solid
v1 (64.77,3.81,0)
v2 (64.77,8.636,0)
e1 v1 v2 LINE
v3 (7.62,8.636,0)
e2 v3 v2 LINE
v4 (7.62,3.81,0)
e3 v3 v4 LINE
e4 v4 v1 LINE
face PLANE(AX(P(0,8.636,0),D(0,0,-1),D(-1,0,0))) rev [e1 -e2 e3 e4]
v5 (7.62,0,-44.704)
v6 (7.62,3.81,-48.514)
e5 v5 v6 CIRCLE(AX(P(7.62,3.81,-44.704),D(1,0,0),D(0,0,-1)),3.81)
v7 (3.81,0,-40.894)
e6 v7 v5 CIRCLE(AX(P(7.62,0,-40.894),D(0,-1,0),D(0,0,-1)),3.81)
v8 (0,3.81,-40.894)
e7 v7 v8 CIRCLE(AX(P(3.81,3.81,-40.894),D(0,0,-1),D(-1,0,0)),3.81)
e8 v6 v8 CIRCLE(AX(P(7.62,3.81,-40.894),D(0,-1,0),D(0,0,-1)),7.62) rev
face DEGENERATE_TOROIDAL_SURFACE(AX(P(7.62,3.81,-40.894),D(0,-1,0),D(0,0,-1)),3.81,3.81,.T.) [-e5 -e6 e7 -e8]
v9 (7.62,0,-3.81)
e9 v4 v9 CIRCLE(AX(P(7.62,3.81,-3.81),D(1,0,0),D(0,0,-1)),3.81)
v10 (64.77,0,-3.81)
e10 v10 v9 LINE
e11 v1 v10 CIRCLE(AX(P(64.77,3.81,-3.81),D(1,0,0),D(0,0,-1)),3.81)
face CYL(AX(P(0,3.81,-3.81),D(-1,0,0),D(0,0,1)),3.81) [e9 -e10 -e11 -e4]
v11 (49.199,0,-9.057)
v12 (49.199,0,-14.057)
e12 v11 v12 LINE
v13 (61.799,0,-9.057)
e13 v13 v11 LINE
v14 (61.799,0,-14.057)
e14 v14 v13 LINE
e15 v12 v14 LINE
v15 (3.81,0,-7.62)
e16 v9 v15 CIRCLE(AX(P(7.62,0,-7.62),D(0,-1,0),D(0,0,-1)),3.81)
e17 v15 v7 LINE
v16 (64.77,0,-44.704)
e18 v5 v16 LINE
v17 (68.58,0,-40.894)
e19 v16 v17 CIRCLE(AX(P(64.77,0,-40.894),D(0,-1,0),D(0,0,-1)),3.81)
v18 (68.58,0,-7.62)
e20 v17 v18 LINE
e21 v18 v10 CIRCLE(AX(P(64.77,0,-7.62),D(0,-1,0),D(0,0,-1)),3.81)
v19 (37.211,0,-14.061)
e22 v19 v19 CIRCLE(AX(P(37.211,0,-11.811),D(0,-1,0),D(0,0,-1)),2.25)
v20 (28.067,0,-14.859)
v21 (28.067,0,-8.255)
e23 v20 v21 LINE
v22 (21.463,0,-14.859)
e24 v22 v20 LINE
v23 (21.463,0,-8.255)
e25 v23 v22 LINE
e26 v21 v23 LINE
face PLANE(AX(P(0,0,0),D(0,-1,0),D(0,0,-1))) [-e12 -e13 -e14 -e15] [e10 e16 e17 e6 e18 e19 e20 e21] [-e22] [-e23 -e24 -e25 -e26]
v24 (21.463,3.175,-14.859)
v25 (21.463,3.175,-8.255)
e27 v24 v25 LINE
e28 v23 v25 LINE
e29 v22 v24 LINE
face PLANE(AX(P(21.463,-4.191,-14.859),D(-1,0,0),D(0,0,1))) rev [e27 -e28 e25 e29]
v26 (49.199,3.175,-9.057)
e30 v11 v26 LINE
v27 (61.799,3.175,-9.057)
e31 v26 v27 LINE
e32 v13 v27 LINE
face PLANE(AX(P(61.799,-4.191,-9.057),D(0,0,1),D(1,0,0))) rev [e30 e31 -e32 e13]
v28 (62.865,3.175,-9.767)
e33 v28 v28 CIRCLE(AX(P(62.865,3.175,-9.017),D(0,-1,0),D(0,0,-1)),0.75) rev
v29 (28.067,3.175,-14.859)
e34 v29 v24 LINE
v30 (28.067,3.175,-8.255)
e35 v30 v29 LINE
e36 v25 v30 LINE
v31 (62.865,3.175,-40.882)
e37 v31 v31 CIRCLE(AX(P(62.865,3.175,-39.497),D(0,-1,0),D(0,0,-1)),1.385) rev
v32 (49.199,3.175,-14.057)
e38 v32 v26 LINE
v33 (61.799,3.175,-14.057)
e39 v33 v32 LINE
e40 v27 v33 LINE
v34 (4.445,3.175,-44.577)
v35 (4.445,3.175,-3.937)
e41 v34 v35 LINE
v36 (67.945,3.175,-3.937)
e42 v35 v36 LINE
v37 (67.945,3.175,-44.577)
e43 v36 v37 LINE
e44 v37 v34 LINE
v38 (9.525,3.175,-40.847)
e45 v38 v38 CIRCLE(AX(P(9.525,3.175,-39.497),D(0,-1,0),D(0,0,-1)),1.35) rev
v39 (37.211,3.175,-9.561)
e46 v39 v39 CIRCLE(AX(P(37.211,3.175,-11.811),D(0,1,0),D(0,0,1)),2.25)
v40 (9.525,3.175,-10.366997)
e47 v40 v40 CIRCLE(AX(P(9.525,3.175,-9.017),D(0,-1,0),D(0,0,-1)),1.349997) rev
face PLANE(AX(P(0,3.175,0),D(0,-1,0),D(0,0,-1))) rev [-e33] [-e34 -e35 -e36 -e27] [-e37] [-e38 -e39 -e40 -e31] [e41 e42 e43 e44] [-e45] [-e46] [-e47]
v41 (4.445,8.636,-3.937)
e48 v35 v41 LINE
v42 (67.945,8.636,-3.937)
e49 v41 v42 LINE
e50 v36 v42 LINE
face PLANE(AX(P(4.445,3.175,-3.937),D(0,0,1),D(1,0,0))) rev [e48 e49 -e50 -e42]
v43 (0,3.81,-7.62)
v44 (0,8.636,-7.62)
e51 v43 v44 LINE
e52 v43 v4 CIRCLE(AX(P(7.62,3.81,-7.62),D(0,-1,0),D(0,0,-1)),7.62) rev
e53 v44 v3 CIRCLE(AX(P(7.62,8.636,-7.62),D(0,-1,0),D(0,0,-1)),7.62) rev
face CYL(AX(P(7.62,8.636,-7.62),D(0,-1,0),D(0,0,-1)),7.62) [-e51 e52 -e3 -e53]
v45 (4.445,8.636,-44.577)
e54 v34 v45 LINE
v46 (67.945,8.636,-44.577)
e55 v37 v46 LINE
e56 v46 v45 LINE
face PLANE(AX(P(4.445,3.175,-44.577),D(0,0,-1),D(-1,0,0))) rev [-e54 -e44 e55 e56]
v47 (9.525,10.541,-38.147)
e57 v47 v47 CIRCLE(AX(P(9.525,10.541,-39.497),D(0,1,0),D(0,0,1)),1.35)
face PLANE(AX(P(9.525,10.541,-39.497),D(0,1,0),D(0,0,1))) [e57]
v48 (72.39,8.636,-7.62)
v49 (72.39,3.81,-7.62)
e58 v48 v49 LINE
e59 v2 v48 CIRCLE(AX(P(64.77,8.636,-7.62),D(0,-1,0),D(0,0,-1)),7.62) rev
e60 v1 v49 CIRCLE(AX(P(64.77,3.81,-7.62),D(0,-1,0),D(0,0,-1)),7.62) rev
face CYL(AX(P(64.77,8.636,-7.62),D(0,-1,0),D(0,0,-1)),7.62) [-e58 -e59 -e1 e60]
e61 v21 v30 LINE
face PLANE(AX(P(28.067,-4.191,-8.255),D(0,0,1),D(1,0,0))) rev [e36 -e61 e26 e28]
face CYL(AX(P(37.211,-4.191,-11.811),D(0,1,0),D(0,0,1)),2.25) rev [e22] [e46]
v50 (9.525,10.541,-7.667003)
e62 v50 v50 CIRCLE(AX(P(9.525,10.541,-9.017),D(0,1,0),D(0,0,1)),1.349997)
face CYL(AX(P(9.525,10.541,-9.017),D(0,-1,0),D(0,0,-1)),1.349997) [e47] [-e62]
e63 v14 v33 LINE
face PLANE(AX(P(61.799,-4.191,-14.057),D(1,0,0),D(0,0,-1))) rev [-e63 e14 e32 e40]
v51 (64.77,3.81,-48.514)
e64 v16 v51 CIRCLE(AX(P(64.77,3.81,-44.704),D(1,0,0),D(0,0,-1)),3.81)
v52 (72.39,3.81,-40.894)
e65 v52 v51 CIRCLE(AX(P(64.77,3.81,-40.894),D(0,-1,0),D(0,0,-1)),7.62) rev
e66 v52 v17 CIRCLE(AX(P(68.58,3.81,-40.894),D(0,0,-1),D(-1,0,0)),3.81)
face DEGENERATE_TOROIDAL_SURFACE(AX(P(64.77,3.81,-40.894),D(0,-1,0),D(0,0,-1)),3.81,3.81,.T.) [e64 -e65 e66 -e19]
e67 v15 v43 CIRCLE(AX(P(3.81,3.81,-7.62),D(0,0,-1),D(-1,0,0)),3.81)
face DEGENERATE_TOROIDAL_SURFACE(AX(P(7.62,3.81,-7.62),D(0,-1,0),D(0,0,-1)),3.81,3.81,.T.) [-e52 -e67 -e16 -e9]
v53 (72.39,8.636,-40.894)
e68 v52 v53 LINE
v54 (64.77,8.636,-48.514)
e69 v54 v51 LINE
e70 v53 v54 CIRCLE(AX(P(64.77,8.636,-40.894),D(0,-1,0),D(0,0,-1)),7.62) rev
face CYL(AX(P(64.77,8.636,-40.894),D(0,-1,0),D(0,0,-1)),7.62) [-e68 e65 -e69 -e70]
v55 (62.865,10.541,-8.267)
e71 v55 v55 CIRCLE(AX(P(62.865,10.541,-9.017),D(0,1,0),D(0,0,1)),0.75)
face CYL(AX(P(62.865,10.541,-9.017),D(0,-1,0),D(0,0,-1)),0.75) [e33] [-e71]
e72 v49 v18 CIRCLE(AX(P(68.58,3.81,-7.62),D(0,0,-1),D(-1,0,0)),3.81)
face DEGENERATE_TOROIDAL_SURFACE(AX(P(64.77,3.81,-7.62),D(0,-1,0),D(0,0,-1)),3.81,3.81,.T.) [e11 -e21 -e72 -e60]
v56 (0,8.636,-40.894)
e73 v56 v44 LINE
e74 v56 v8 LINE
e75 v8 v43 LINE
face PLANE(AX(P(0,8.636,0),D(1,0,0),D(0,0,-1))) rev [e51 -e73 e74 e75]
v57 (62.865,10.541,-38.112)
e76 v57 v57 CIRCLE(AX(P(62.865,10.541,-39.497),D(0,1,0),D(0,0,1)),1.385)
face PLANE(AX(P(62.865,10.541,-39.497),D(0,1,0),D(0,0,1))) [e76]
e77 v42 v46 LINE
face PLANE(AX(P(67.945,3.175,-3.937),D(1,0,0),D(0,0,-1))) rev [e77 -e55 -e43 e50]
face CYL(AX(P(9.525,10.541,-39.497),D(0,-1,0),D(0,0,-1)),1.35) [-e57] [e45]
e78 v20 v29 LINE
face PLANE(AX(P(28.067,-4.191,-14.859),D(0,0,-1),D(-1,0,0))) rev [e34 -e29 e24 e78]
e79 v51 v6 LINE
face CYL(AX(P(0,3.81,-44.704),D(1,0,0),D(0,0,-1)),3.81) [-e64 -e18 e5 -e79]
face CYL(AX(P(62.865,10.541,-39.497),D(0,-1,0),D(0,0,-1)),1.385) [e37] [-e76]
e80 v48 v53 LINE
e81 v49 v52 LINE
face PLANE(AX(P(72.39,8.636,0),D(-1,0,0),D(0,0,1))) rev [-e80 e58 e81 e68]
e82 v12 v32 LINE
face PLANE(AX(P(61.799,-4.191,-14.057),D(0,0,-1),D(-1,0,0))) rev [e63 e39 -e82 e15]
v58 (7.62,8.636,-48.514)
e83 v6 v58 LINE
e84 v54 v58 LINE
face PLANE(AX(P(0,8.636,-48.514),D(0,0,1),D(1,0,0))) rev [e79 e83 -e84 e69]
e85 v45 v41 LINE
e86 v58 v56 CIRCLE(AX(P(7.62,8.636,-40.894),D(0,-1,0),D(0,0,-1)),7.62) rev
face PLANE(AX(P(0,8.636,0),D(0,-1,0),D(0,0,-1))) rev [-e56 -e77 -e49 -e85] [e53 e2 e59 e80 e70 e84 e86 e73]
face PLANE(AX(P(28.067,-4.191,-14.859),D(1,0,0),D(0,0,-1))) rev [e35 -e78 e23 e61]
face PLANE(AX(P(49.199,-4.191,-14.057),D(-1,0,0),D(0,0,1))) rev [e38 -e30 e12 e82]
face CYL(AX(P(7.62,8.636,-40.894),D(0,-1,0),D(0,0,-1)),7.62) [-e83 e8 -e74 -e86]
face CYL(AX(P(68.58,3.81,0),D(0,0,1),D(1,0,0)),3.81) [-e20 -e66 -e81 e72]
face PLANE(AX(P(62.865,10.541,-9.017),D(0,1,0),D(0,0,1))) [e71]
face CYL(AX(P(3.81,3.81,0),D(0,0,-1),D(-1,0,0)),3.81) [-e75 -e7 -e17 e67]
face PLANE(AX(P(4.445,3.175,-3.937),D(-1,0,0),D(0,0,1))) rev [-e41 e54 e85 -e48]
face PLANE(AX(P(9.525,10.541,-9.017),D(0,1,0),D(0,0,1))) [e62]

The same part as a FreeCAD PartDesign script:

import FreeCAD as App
import Part
import Sketcher
Q = App.Units.Quantity


def edges_at(feature, points):
    """Names of the edges that pass closest to the given points."""
    edges = feature.Shape.Edges
    near = lambda p: min(range(len(edges)), key=lambda i: edges[i].distToShape(Part.Vertex(*p))[0])
    return sorted({f"Edge{near(p) + 1}" for p in points})


def add_polygon(sketch, points):
    """Adds a closed chain of lines whose ends are joined by coincident constraints."""
    first, n = sketch.GeometryCount, len(points)
    for a, b in zip(points, points[1:] + points[:1]):
        sketch.addGeometry(Part.LineSegment(App.Vector(*a, 0), App.Vector(*b, 0)), False)
    for i in range(n):
        sketch.addConstraint(Sketcher.Constraint("Coincident", first + i, 2, first + (i + 1) % n, 1))

doc = App.newDocument("Part")
body = doc.addObject("PartDesign::Body", "Body")

# Sketch on XZ plane
sketch1 = doc.addObject("Sketcher::SketchObject", "Sketch")
body.addObject(sketch1)
sketch1.AttachmentSupport = (doc.XZ_Plane, [""])
sketch1.MapMode = "FlatFace"
add_polygon(sketch1, [(0, -49), (0, 0), (72, 0), (72, -49)])  # lines 0-3
sketch1.addConstraint([
    Sketcher.Constraint("Vertical", 0),
    Sketcher.Constraint("Horizontal", 1),
    Sketcher.Constraint("Vertical", 2),
    Sketcher.Constraint("Horizontal", 3),
    Sketcher.Constraint("Coincident", 0, 2, -1, 1),
    Sketcher.Constraint("DistanceX", 1, 1, 1, 2, Q("2.85 in")),
    Sketcher.Constraint("DistanceY", 0, 1, 0, 2, Q("1.91 in")),
])
pad1 = doc.addObject("PartDesign::Pad", "Pad")
body.addObject(pad1)
pad1.Profile = sketch1
pad1.Length = Q("0.34 in")
pad1.Reversed = True

# Sketch on XZ plane
sketch2 = doc.addObject("Sketcher::SketchObject", "Sketch001")
body.addObject(sketch2)
sketch2.AttachmentSupport = (doc.XZ_Plane, [""])
sketch2.MapMode = "FlatFace"
sketch2.AttachmentOffset = App.Placement(App.Vector(0, 0, -0.34 * 25.4), App.Rotation())
add_polygon(sketch2, [(4, -45), (4, -4), (68, -4), (68, -45)])  # lines 0-3
sketch2.addConstraint([
    Sketcher.Constraint("Vertical", 0),
    Sketcher.Constraint("Horizontal", 1),
    Sketcher.Constraint("Vertical", 2),
    Sketcher.Constraint("Horizontal", 3),
    Sketcher.Constraint("DistanceX", 1, 1, 1, 2, Q("2.5 in")),
    Sketcher.Constraint("DistanceY", 0, 1, 0, 2, Q("1.6 in")),
    Sketcher.Constraint("DistanceX", -1, 1, 0, 2, Q("0.175 in")),
    Sketcher.Constraint("DistanceY", 0, 2, -1, 1, Q("0.155 in")),
])
pocket1 = doc.addObject("PartDesign::Pocket", "Pocket")
body.addObject(pocket1)
pocket1.Profile = sketch2
pocket1.Length = Q("0.215 in")
pocket1.Reversed = True
doc.recompute()

fillet = doc.addObject("PartDesign::Fillet", "Fillet")
body.addObject(fillet)
fillet.Base = (pocket1, edges_at(pocket1, [
    (0, 4.318, -48.514),
    (72.39, 4.318, -48.514),
    (72.39, 4.318, 0),
    (0, 4.318, 0),
]))
fillet.Radius = Q("0.3 in")
doc.recompute()

fillet2 = doc.addObject("PartDesign::Fillet", "Fillet001")
body.addObject(fillet2)
fillet2.Base = (fillet, edges_at(fillet, [
    (36.195, 0, -48.514),
    (0, 0, -24.257),
    (72.39, 0, -24.257),
    (36.195, 0, 0),
    (2.232, 0, -46.282),
    (2.232, 0, -2.232),
    (70.158, 0, -2.232),
    (70.158, 0, -46.282),
]))
fillet2.Radius = Q("0.15 in")

# Sketch on XZ plane
sketch3 = doc.addObject("Sketcher::SketchObject", "Sketch002")
body.addObject(sketch3)
sketch3.AttachmentSupport = (doc.XZ_Plane, [""])
sketch3.MapMode = "FlatFace"
sketch3.AttachmentOffset = App.Placement(App.Vector(0, 0, -0.125 * 25.4), App.Rotation())
sketch3.addGeometry(Part.Circle(App.Vector(37.2, -11.8, 0), App.Vector(0, 0, 1), 2.2), False)  # 0
add_polygon(sketch3, [(49.2, -14.1), (49.2, -9.1), (61.8, -9.1), (61.8, -14.1)])  # lines 1-4
add_polygon(sketch3, [(21.5, -14.9), (21.5, -8.3), (28.1, -8.3), (28.1, -14.9)])  # lines 5-8
sketch3.addConstraint([
    Sketcher.Constraint("Vertical", 1),
    Sketcher.Constraint("Horizontal", 2),
    Sketcher.Constraint("Vertical", 3),
    Sketcher.Constraint("Horizontal", 4),
    Sketcher.Constraint("Vertical", 5),
    Sketcher.Constraint("Horizontal", 6),
    Sketcher.Constraint("Vertical", 7),
    Sketcher.Constraint("Horizontal", 8),
    Sketcher.Constraint("Equal", 8, 5),
    Sketcher.Constraint("DistanceX", 6, 1, 6, 2, Q("0.26 in")),
    Sketcher.Constraint("Diameter", 0, 4.5),
    Sketcher.Constraint("DistanceX", 5, 2, 0, 3, Q("0.62 in")),
    Sketcher.Constraint("DistanceY", 0, 3, 5, 2, Q("0.14 in")),
    Sketcher.Constraint("DistanceX", -1, 1, 0, 3, Q("1.465 in")),
    Sketcher.Constraint("DistanceY", 0, 3, -1, 1, Q("0.465 in")),
    Sketcher.Constraint("DistanceX", 2, 1, 2, 2, 12.6),
    Sketcher.Constraint("DistanceY", 1, 1, 1, 2, 5.0),
    Sketcher.Constraint("DistanceX", -1, 1, 1, 2, 49.199),
    Sketcher.Constraint("DistanceY", 1, 2, -1, 1, 9.057),
])
pocket2 = doc.addObject("PartDesign::Pocket", "Pocket001")
body.addObject(pocket2)
pocket2.Profile = sketch3
pocket2.Length = Q("0.29 in")
pocket2.Reversed = True

# Sketch on XZ plane
sketch4 = doc.addObject("Sketcher::SketchObject", "Sketch003")
body.addObject(sketch4)
sketch4.AttachmentSupport = (doc.XZ_Plane, [""])
sketch4.MapMode = "FlatFace"
sketch4.AttachmentOffset = App.Placement(App.Vector(0, 0, -0.125 * 25.4), App.Rotation())
sketch4.addGeometry([
    Part.Circle(App.Vector(9.5, -39.5, 0), App.Vector(0, 0, 1), 1.4),
    Part.Circle(App.Vector(9.5, -9, 0), App.Vector(0, 0, 1), 1.3),
    Part.Circle(App.Vector(62.9, -39.5, 0), App.Vector(0, 0, 1), 1.4),
    Part.Circle(App.Vector(62.9, -9, 0), App.Vector(0, 0, 1), 0.8),
], False)
sketch4.addConstraint([
    Sketcher.Constraint("Horizontal", 0, 3, 2, 3),
    Sketcher.Constraint("Horizontal", 1, 3, 3, 3),
    Sketcher.Constraint("Vertical", 0, 3, 1, 3),
    Sketcher.Constraint("Vertical", 2, 3, 3, 3),
    Sketcher.Constraint("DistanceY", 0, 3, 1, 3, Q("1.2 in")),
    Sketcher.Constraint("DistanceX", 0, 3, 2, 3, Q("2.1 in")),
    Sketcher.Constraint("Diameter", 0, 2.7),
    Sketcher.Constraint("Diameter", 2, 2.77),
    Sketcher.Constraint("Diameter", 3, 1.5),
    Sketcher.Constraint("DistanceX", -1, 1, 0, 3, Q("0.375 in")),
    Sketcher.Constraint("DistanceY", 0, 3, -1, 1, Q("1.555 in")),
    Sketcher.Constraint("Diameter", 1, 2.699995),
])
pad2 = doc.addObject("PartDesign::Pad", "Pad001")
body.addObject(pad2)
pad2.Profile = sketch4
pad2.Length = Q("0.29 in")
pad2.Reversed = True

doc.recompute()
